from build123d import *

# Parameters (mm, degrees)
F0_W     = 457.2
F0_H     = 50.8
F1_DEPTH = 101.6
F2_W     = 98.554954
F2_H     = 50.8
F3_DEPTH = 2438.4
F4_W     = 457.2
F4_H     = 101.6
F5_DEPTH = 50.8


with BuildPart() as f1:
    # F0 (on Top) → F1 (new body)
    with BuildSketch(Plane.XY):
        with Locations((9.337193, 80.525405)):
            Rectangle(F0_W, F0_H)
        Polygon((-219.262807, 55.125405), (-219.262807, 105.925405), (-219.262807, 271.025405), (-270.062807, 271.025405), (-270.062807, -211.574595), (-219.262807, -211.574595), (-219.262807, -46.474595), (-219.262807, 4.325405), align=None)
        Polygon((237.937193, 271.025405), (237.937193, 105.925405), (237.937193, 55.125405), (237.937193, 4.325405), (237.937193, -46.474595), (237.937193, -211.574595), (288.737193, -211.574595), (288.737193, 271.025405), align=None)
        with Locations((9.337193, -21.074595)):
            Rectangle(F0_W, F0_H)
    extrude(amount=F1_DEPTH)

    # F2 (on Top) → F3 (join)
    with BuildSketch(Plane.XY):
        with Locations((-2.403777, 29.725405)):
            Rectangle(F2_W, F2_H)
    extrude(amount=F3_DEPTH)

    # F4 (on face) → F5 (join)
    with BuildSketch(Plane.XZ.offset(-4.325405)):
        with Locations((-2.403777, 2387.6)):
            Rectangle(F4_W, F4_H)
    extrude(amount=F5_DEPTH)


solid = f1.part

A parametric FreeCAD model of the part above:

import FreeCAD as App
import Part
import Sketcher
Q = App.Units.Quantity

doc = App.newDocument("Part")
params = doc.addObject("Spreadsheet::Sheet", "Params")
for row, (alias, value) in enumerate([
    ("sketch1_width", "2 in"),
    ("sketch1_width2", "18 in"),
    ("sketch1_height", "19 in"),
    ("sketch1_height2", "6.5 in"),
    ("pad1_length", "4 in"),
    ("sketch2_height", "2 in"),
    ("pad2_length", "96 in"),
    ("sketch3_width", "18 in"),
    ("sketch3_height", "4 in"),
    ("pad3_length", "2 in"),
], start=1):
    params.set(f"A{row}", alias)
    params.set(f"B{row}", "=" + value)
    params.setAlias(f"B{row}", alias)

body = doc.addObject("PartDesign::Body", "Body")

sketch1 = body.newObject("Sketcher::SketchObject", "Sketch")
sketch1.AttachmentSupport = (doc.getObject("XY_Plane"), [""])
sketch1.MapMode = "FlatFace"
sketch1.addGeometry([
    Part.LineSegment(App.Vector(238, -46, 0), App.Vector(238, -212, 0)),
    Part.LineSegment(App.Vector(238, -212, 0), App.Vector(289, -212, 0)),
    Part.LineSegment(App.Vector(289, -212, 0), App.Vector(289, 271, 0)),
    Part.LineSegment(App.Vector(289, 271, 0), App.Vector(238, 271, 0)),
    Part.LineSegment(App.Vector(238, 271, 0), App.Vector(238, 106, 0)),
    Part.LineSegment(App.Vector(238, 106, 0), App.Vector(-219, 106, 0)),
    Part.LineSegment(App.Vector(-219, 106, 0), App.Vector(-219, 271, 0)),
    Part.LineSegment(App.Vector(-219, 271, 0), App.Vector(-270, 271, 0)),
    Part.LineSegment(App.Vector(-270, 271, 0), App.Vector(-270, -212, 0)),
    Part.LineSegment(App.Vector(-270, -212, 0), App.Vector(-219, -212, 0)),
    Part.LineSegment(App.Vector(-219, -212, 0), App.Vector(-219, -46, 0)),
    Part.LineSegment(App.Vector(-219, -46, 0), App.Vector(238, -46, 0)),
    Part.LineSegment(App.Vector(-219, 55, 0), App.Vector(238, 55, 0)),
    Part.LineSegment(App.Vector(238, 55, 0), App.Vector(238, 4, 0)),
    Part.LineSegment(App.Vector(238, 4, 0), App.Vector(-219, 4, 0)),
    Part.LineSegment(App.Vector(-219, 4, 0), App.Vector(-219, 55, 0)),
], False)
sketch1.addConstraint([
    Sketcher.Constraint("Coincident", 0, 2, 1, 1),
    Sketcher.Constraint("Coincident", 1, 2, 2, 1),
    Sketcher.Constraint("Coincident", 2, 2, 3, 1),
    Sketcher.Constraint("Coincident", 3, 2, 4, 1),
    Sketcher.Constraint("Coincident", 4, 2, 5, 1),
    Sketcher.Constraint("Coincident", 5, 2, 6, 1),
    Sketcher.Constraint("Coincident", 6, 2, 7, 1),
    Sketcher.Constraint("Coincident", 7, 2, 8, 1),
    Sketcher.Constraint("Coincident", 8, 2, 9, 1),
    Sketcher.Constraint("Coincident", 9, 2, 10, 1),
    Sketcher.Constraint("Coincident", 10, 2, 11, 1),
    Sketcher.Constraint("Coincident", 11, 2, 0, 1),
    Sketcher.Constraint("Coincident", 12, 2, 13, 1),
    Sketcher.Constraint("Coincident", 13, 2, 14, 1),
    Sketcher.Constraint("Coincident", 14, 2, 15, 1),
    Sketcher.Constraint("Coincident", 15, 2, 12, 1),
    Sketcher.Constraint("Vertical", 0),
    Sketcher.Constraint("Horizontal", 1),
    Sketcher.Constraint("Vertical", 2),
    Sketcher.Constraint("Horizontal", 3),
    Sketcher.Constraint("Vertical", 4),
    Sketcher.Constraint("Horizontal", 5),
    Sketcher.Constraint("Vertical", 6),
    Sketcher.Constraint("Horizontal", 7),
    Sketcher.Constraint("Vertical", 8),
    Sketcher.Constraint("Horizontal", 9),
    Sketcher.Constraint("Vertical", 10),
    Sketcher.Constraint("Horizontal", 11),
    Sketcher.Constraint("Horizontal", 12),
    Sketcher.Constraint("Vertical", 13),
    Sketcher.Constraint("Horizontal", 14),
    Sketcher.Constraint("Vertical", 15),
    Sketcher.Constraint("Horizontal", 3, 2, 6, 2),
    Sketcher.Constraint("Horizontal", 1, 2, 8, 2),
    Sketcher.Constraint("Vertical", 0, 2, 3, 2),
    Sketcher.Constraint("Vertical", 6, 2, 9, 2),
    Sketcher.Constraint("Vertical", 11, 2, 12, 2),
    Sketcher.Constraint("Vertical", 10, 2, 14, 2),
    Sketcher.Constraint("Equal", 3, 7),
    Sketcher.Constraint("Equal", 0, 4),
    Sketcher.Constraint("Equal", 9, 13),
    Sketcher.Constraint("DistanceX", 1, 1, 1, 2, Q("2 in")),
    Sketcher.Constraint("DistanceX", 5, 2, 5, 1, Q("18 in")),
    Sketcher.Constraint("DistanceY", 2, 1, 2, 2, Q("19 in")),
    Sketcher.Constraint("DistanceY", 0, 2, 0, 1, Q("6.5 in")),
    Sketcher.Constraint("DistanceY", 12, 2, 4, 2, Q("2 in")),
    Sketcher.Constraint("DistanceX", -1, 1, 0, 2, Q("237.937193 mm")),
    Sketcher.Constraint("DistanceY", 0, 2, -1, 1, Q("211.574595 mm")),
])
sketch1.setExpression("Constraints[41]", "Params.sketch1_width")
sketch1.setExpression("Constraints[42]", "Params.sketch1_width2")
sketch1.setExpression("Constraints[43]", "Params.sketch1_height")
sketch1.setExpression("Constraints[44]", "Params.sketch1_height2")
pad1 = body.newObject("PartDesign::Pad", "Pad")
pad1.Profile = sketch1
pad1.setExpression("Length", "Params.pad1_length")

sketch2 = body.newObject("Sketcher::SketchObject", "Sketch001")
sketch2.AttachmentSupport = (doc.getObject("XY_Plane"), [""])
sketch2.MapMode = "FlatFace"
sketch2.addGeometry([
    Part.LineSegment(App.Vector(-52, 55, 0), App.Vector(-52, 4, 0)),
    Part.LineSegment(App.Vector(-52, 4, 0), App.Vector(47, 4, 0)),
    Part.LineSegment(App.Vector(47, 4, 0), App.Vector(47, 55, 0)),
    Part.LineSegment(App.Vector(47, 55, 0), App.Vector(-52, 55, 0)),
], False)
sketch2.addConstraint([
    Sketcher.Constraint("Coincident", 0, 2, 1, 1),
    Sketcher.Constraint("Coincident", 1, 2, 2, 1),
    Sketcher.Constraint("Coincident", 2, 2, 3, 1),
    Sketcher.Constraint("Coincident", 3, 2, 0, 1),
    Sketcher.Constraint("Vertical", 0),
    Sketcher.Constraint("Horizontal", 1),
    Sketcher.Constraint("Vertical", 2),
    Sketcher.Constraint("Horizontal", 3),
    Sketcher.Constraint("DistanceY", 0, 2, 0, 1, Q("2 in")),
    Sketcher.Constraint("DistanceX", -1, 1, 1, 2, Q("46.8737 mm")),
    Sketcher.Constraint("DistanceX", 1, 1, 1, 2, Q("98.554954 mm")),
    Sketcher.Constraint("DistanceY", -1, 1, 0, 2, Q("4.325405 mm")),
])
sketch2.setExpression("Constraints[8]", "Params.sketch2_height")
pad2 = body.newObject("PartDesign::Pad", "Pad001")
pad2.Profile = sketch2
pad2.setExpression("Length", "Params.pad2_length")

sketch3 = body.newObject("Sketcher::SketchObject", "Sketch002")
sketch3.AttachmentSupport = (doc.getObject("XZ_Plane"), [""])
sketch3.MapMode = "FlatFace"
sketch3.AttachmentOffset = App.Placement(App.Vector(0, 0, -4.325405), App.Rotation())
sketch3.addGeometry([
    Part.LineSegment(App.Vector(-231, 2438, 0), App.Vector(-231, 2337, 0)),
    Part.LineSegment(App.Vector(-231, 2337, 0), App.Vector(226, 2337, 0)),
    Part.LineSegment(App.Vector(226, 2337, 0), App.Vector(226, 2438, 0)),
    Part.LineSegment(App.Vector(226, 2438, 0), App.Vector(-231, 2438, 0)),
], False)
sketch3.addConstraint([
    Sketcher.Constraint("Coincident", 0, 2, 1, 1),
    Sketcher.Constraint("Coincident", 1, 2, 2, 1),
    Sketcher.Constraint("Coincident", 2, 2, 3, 1),
    Sketcher.Constraint("Coincident", 3, 2, 0, 1),
    Sketcher.Constraint("Vertical", 0),
    Sketcher.Constraint("Horizontal", 1),
    Sketcher.Constraint("Vertical", 2),
    Sketcher.Constraint("Horizontal", 3),
    Sketcher.Constraint("DistanceX", 1, 1, 1, 2, Q("18 in")),
    Sketcher.Constraint("DistanceY", 0, 2, 0, 1, Q("4 in")),
    Sketcher.Constraint("DistanceY", -1, 1, 0, 2, Q("92 in")),
    Sketcher.Constraint("DistanceX", 0, 2, -1, 1, Q("231.003777 mm")),
])
sketch3.setExpression("Constraints[8]", "Params.sketch3_width")
sketch3.setExpression("Constraints[9]", "Params.sketch3_height")
pad3 = body.newObject("PartDesign::Pad", "Pad002")
pad3.Profile = sketch3
pad3.setExpression("Length", "Params.pad3_length")

doc.recompute()
